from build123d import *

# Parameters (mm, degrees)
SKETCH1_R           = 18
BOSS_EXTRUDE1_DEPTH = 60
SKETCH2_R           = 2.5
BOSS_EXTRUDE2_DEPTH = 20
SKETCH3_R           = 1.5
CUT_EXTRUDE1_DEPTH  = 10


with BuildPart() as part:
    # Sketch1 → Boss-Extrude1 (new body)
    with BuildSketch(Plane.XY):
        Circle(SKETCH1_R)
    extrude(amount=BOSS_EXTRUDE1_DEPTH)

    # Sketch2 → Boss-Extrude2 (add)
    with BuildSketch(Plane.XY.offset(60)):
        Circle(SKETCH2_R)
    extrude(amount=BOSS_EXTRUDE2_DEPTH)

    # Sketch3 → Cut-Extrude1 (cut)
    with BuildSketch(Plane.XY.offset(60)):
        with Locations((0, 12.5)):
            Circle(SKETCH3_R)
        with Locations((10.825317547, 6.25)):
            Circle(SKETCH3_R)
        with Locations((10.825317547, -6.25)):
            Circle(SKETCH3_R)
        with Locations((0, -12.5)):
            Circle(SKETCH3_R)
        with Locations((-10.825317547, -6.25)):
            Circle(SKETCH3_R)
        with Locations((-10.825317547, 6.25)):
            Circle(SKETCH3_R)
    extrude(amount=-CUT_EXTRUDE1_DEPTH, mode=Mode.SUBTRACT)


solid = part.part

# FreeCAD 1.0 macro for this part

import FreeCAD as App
import Part
import Sketcher
Q = App.Units.Quantity

doc = App.newDocument("Part")
body = doc.addObject("PartDesign::Body", "Body")

sketch1 = doc.addObject("Sketcher::SketchObject", "Sketch")
body.addObject(sketch1)
sketch1.AttachmentSupport = (doc.XY_Plane, [""])
sketch1.MapMode = "FlatFace"
sketch1.addGeometry(Part.Circle(App.Vector(0, 0, 0), App.Vector(0, 0, 1), 18), False)
sketch1.addConstraint([
    Sketcher.Constraint("Coincident", 0, 3, -1, 1),
    Sketcher.Constraint("Diameter", 0, Q("36 mm")),
])
pad1 = doc.addObject("PartDesign::Pad", "Pad")
body.addObject(pad1)
pad1.Profile = sketch1
pad1.Length = 60

sketch2 = doc.addObject("Sketcher::SketchObject", "Sketch001")
body.addObject(sketch2)
sketch2.AttachmentSupport = (doc.XY_Plane, [""])
sketch2.MapMode = "FlatFace"
sketch2.AttachmentOffset = App.Placement(App.Vector(0, 0, 60), App.Rotation())
sketch2.addGeometry(Part.Circle(App.Vector(0, 0, 0), App.Vector(0, 0, 1), 2.5), False)
sketch2.addConstraint([
    Sketcher.Constraint("Coincident", 0, 3, -1, 1),
    Sketcher.Constraint("Diameter", 0, Q("5 mm")),
])
pad2 = doc.addObject("PartDesign::Pad", "Pad001")
body.addObject(pad2)
pad2.Profile = sketch2
pad2.Length = 20

sketch3 = doc.addObject("Sketcher::SketchObject", "Sketch002")
body.addObject(sketch3)
sketch3.AttachmentSupport = (doc.XY_Plane, [""])
sketch3.MapMode = "FlatFace"
sketch3.AttachmentOffset = App.Placement(App.Vector(0, 0, 60), App.Rotation())
sketch3.addGeometry([
    Part.Circle(App.Vector(0, 12.5, 0), App.Vector(0, 0, 1), 1.5),
    Part.Circle(App.Vector(10.825318, 6.25, 0), App.Vector(0, 0, 1), 1.5),
    Part.Circle(App.Vector(10.825318, -6.25, 0), App.Vector(0, 0, 1), 1.5),
    Part.Circle(App.Vector(0, -12.5, 0), App.Vector(0, 0, 1), 1.5),
    Part.Circle(App.Vector(-10.825318, -6.25, 0), App.Vector(0, 0, 1), 1.5),
    Part.Circle(App.Vector(-10.825318, 6.25, 0), App.Vector(0, 0, 1), 1.5),
], False)
sketch3.addConstraint([
    Sketcher.Constraint("Equal", 0, 1),
    Sketcher.Constraint("Equal", 1, 2),
    Sketcher.Constraint("Equal", 2, 3),
    Sketcher.Constraint("Equal", 3, 4),
    Sketcher.Constraint("Equal", 4, 5),
    Sketcher.Constraint("Symmetric", 0, 3, 3, 3, -1, 1),
    Sketcher.Constraint("Symmetric", 1, 3, 4, 3, -1, 1),
    Sketcher.Constraint("Symmetric", 2, 3, 5, 3, -1, 1),
    Sketcher.Constraint("Symmetric", 2, 3, 4, 3, -2),
    Sketcher.Constraint("PointOnObject", 0, 3, -2),
    Sketcher.Constraint("Diameter", 0, Q("3 mm")),
    Sketcher.Constraint("DistanceY", 3, 3, 0, 3, Q("25 mm")),
    Sketcher.Constraint("DistanceY", 2, 3, 1, 3, Q("12.5 mm")),
    Sketcher.Constraint("DistanceX", -1, 1, 1, 3, Q("10.825318 mm")),
])
pocket1 = doc.addObject("PartDesign::Pocket", "Pocket")
body.addObject(pocket1)
pocket1.Profile = sketch3
pocket1.Length = 10

doc.recompute()
